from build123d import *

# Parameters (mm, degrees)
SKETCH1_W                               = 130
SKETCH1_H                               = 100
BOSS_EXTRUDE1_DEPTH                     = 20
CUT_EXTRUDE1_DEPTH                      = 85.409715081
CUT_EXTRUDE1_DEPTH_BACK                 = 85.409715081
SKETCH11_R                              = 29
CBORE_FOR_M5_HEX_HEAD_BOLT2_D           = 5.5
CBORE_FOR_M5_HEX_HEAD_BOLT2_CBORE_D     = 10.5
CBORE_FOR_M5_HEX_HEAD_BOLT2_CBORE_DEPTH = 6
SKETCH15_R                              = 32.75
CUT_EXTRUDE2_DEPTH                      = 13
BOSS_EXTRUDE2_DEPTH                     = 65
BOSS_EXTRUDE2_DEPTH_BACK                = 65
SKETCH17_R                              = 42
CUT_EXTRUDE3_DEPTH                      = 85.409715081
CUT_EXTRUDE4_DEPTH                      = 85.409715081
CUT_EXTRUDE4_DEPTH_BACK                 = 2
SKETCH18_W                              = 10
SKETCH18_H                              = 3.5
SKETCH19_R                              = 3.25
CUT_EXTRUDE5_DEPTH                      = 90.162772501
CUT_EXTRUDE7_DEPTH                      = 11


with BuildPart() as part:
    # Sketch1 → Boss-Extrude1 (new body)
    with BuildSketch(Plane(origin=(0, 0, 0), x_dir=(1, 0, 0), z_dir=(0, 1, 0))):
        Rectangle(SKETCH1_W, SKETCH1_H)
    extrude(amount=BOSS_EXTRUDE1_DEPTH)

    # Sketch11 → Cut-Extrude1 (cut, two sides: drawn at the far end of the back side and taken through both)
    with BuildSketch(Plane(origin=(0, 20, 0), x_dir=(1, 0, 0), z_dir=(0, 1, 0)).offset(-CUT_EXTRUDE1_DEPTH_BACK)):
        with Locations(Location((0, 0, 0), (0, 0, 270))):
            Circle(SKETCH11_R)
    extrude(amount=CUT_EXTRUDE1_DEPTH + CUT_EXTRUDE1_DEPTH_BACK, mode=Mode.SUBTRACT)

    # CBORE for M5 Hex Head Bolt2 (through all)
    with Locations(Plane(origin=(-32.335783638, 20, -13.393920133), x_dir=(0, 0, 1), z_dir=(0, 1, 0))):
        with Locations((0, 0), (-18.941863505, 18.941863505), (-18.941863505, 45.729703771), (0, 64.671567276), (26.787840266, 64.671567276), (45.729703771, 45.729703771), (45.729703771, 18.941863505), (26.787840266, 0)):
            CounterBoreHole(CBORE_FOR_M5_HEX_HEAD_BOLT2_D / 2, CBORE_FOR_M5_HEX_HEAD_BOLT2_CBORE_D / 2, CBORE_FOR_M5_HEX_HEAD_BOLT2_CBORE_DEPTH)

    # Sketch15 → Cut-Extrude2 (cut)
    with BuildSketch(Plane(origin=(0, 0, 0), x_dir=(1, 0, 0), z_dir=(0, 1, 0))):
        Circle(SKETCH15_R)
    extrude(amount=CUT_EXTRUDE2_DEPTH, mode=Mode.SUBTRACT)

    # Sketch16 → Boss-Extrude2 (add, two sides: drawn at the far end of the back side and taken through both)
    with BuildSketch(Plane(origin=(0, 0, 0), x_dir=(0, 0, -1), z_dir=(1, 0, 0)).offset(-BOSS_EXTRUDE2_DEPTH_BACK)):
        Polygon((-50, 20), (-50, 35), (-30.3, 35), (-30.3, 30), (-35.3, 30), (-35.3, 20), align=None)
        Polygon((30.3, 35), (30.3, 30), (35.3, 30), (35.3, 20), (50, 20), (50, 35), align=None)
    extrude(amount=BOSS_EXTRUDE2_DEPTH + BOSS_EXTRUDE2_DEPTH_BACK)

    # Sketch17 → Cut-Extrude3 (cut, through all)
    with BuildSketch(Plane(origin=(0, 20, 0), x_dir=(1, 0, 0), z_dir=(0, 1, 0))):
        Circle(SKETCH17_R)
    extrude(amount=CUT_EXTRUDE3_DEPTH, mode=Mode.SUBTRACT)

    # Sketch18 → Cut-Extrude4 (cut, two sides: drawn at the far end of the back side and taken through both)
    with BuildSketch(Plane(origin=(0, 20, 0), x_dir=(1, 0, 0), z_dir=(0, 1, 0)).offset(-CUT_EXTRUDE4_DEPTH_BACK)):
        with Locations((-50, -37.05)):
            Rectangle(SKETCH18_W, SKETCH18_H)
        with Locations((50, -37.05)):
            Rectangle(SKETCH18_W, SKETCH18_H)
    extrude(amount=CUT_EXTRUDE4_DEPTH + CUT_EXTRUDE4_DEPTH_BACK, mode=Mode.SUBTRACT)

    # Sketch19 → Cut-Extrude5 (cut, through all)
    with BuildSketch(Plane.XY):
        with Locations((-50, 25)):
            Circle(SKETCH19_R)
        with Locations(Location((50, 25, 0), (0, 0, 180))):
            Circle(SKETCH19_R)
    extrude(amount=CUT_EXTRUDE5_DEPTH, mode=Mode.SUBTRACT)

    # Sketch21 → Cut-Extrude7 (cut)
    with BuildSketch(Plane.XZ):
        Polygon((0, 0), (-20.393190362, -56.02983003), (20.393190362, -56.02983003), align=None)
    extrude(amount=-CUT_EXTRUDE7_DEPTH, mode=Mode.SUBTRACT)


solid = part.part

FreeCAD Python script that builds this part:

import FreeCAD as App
import Part
import Sketcher

V = App.Vector
Q = App.Units.Quantity


def add_polygon(sketch, points):
    """Adds a closed chain of lines whose ends are joined by coincident constraints."""
    first, n = sketch.GeometryCount, len(points)
    for a, b in zip(points, points[1:] + points[:1]):
        sketch.addGeometry(Part.LineSegment(App.Vector(*a, 0), App.Vector(*b, 0)), False)
    for i in range(n):
        sketch.addConstraint(Sketcher.Constraint("Coincident", first + i, 2, first + (i + 1) % n, 1))

doc = App.newDocument("Part")
body = doc.addObject("PartDesign::Body", "Body")

# Sketch on XZ plane
sketch1 = body.newObject("Sketcher::SketchObject", "Sketch")
sketch1.AttachmentSupport = (doc.getObject("XZ_Plane"), [""])
sketch1.MapMode = "FlatFace"
add_polygon(sketch1, [(-65, -50), (-65, 50), (65, 50), (65, -50)])  # lines 0-3
sketch1.addConstraint([
    Sketcher.Constraint("Vertical", 0),
    Sketcher.Constraint("Horizontal", 1),
    Sketcher.Constraint("Vertical", 2),
    Sketcher.Constraint("Horizontal", 3),
    Sketcher.Constraint("Symmetric", 0, 2, 2, 2, -1, 1),
    Sketcher.Constraint("DistanceX", 1, 1, 1, 2, Q("130 mm")),
    Sketcher.Constraint("DistanceY", 0, 1, 0, 2, Q("100 mm")),
])
pad1 = body.newObject("PartDesign::Pad", "Pad")
pad1.Profile = sketch1
pad1.Length = 20
pad1.Reversed = True

# Sketch on XZ plane
sketch2 = body.newObject("Sketcher::SketchObject", "Sketch001")
sketch2.AttachmentSupport = (doc.getObject("XZ_Plane"), [""])
sketch2.MapMode = "FlatFace"
sketch2.AttachmentOffset = App.Placement(V(0, 0, -20), App.Rotation())
sketch2.addGeometry(Part.Circle(V(0, 0, 0), V(0, 0, 1), 29), False)
sketch2.addConstraint([
    Sketcher.Constraint("Coincident", 0, 3, -1, 1),
    Sketcher.Constraint("Diameter", 0, Q("58 mm")),
])
pocket1 = body.newObject("PartDesign::Pocket", "Pocket")
pocket1.Profile = sketch2
pocket1.Type = "ThroughAll"
pocket1.Midplane = True

# Sketch on XZ plane
sketch3 = body.newObject("Sketcher::SketchObject", "Sketch002")
sketch3.AttachmentSupport = (doc.getObject("XZ_Plane"), [""])
sketch3.MapMode = "FlatFace"
sketch3.AttachmentOffset = App.Placement(V(0, 0, -20), App.Rotation())
sketch3.addGeometry([
    Part.Circle(V(-32.335784, -13.39392, 0), V(0, 0, 1), 2.75),  # 0
    Part.Circle(V(-13.39392, -32.335784, 0), V(0, 0, 1), 2.75),  # 1
    Part.Circle(V(13.39392, -32.335784, 0), V(0, 0, 1), 2.75),  # 2
    Part.Circle(V(32.335784, -13.39392, 0), V(0, 0, 1), 2.75),  # 3
    Part.Circle(V(32.335784, 13.39392, 0), V(0, 0, 1), 2.75),  # 4
    Part.Circle(V(13.39392, 32.335784, 0), V(0, 0, 1), 2.75),  # 5
    Part.Circle(V(-13.39392, 32.335784, 0), V(0, 0, 1), 2.75),  # 6
    Part.Circle(V(-32.335784, 13.39392, 0), V(0, 0, 1), 2.75),  # 7
], False)
sketch3.addConstraint([
    Sketcher.Constraint("Equal", 0, 1),
    Sketcher.Constraint("Equal", 1, 2),
    Sketcher.Constraint("Equal", 2, 3),
    Sketcher.Constraint("Equal", 3, 4),
    Sketcher.Constraint("Equal", 4, 5),
    Sketcher.Constraint("Equal", 5, 6),
    Sketcher.Constraint("Equal", 6, 7),
    Sketcher.Constraint("Symmetric", 0, 3, 4, 3, -1, 1),
    Sketcher.Constraint("Symmetric", 1, 3, 5, 3, -1, 1),
    Sketcher.Constraint("Symmetric", 2, 3, 6, 3, -1, 1),
    Sketcher.Constraint("Symmetric", 3, 3, 7, 3, -1, 1),
    Sketcher.Constraint("Symmetric", 1, 3, 2, 3, -2),
    Sketcher.Constraint("Symmetric", 0, 3, 3, 3, -2),
    Sketcher.Constraint("Diameter", 0, Q("5.5 mm")),
    Sketcher.Constraint("DistanceY", 0, 3, -1, 1, Q("13.39392 mm")),
    Sketcher.Constraint("DistanceX", 1, 3, -1, 1, Q("13.39392 mm")),
    Sketcher.Constraint("DistanceX", 0, 3, -1, 1, Q("32.335784 mm")),
    Sketcher.Constraint("DistanceY", 1, 3, -1, 1, Q("32.335784 mm")),
])
doc.recompute()
hole = body.newObject("PartDesign::Hole", "Hole")
hole.Profile = sketch3
hole.ThreadType = "None"
hole.Diameter = 5.5
hole.DepthType = "ThroughAll"
hole.HoleCutType = "Counterbore"
hole.HoleCutDiameter = 10.5
hole.HoleCutDepth = 6
hole.Reversed = True

# Sketch on XZ plane
sketch4 = body.newObject("Sketcher::SketchObject", "Sketch003")
sketch4.AttachmentSupport = (doc.getObject("XZ_Plane"), [""])
sketch4.MapMode = "FlatFace"
sketch4.addGeometry(Part.Circle(V(0, 0, 0), V(0, 0, 1), 32.75), False)
sketch4.addConstraint([
    Sketcher.Constraint("Coincident", 0, 3, -1, 1),
    Sketcher.Constraint("Diameter", 0, Q("65.5 mm")),
])
pocket2 = body.newObject("PartDesign::Pocket", "Pocket001")
pocket2.Profile = sketch4
pocket2.Length = 13

# Sketch on YZ plane
sketch5 = body.newObject("Sketcher::SketchObject", "Sketch004")
sketch5.AttachmentSupport = (doc.getObject("YZ_Plane"), [""])
sketch5.MapMode = "FlatFace"
add_polygon(sketch5, [(35, 50), (20, 50), (20, 35.3), (30, 35.3), (30, 30.3), (35, 30.3)])  # lines 0-5
add_polygon(sketch5, [(35, -30.3), (30, -30.3), (30, -35.3), (20, -35.3), (20, -50), (35, -50)])  # lines 6-11
sketch5.addConstraint([
    Sketcher.Constraint("Horizontal", 0),
    Sketcher.Constraint("Vertical", 1),
    Sketcher.Constraint("Horizontal", 2),
    Sketcher.Constraint("Vertical", 3),
    Sketcher.Constraint("Horizontal", 4),
    Sketcher.Constraint("Vertical", 5),
    Sketcher.Constraint("Horizontal", 6),
    Sketcher.Constraint("Vertical", 7),
    Sketcher.Constraint("Horizontal", 8),
    Sketcher.Constraint("Vertical", 9),
    Sketcher.Constraint("Horizontal", 10),
    Sketcher.Constraint("Vertical", 11),
    Sketcher.Constraint("Symmetric", 3, 2, 6, 2, -1),
    Sketcher.Constraint("Symmetric", 1, 2, 8, 2, -1),
    Sketcher.Constraint("Symmetric", 5, 2, 10, 2, -1),
    Sketcher.Constraint("Equal", 6, 3),
    Sketcher.Constraint("DistanceX", 0, 2, 0, 1, Q("15 mm")),
    Sketcher.Constraint("DistanceX", 2, 1, 2, 2, Q("10 mm")),
    Sketcher.Constraint("DistanceY", 1, 2, 1, 1, Q("14.7 mm")),
    Sketcher.Constraint("DistanceX", -1, 1, 0, 2, Q("20 mm")),
    Sketcher.Constraint("DistanceY", -1, 1, 0, 2, Q("50 mm")),
])
pad2 = body.newObject("PartDesign::Pad", "Pad001")
pad2.Profile = sketch5
pad2.Type = "TwoLengths"
pad2.Length = 65
pad2.Length2 = 65

# Sketch on XZ plane
sketch6 = body.newObject("Sketcher::SketchObject", "Sketch005")
sketch6.AttachmentSupport = (doc.getObject("XZ_Plane"), [""])
sketch6.MapMode = "FlatFace"
sketch6.AttachmentOffset = App.Placement(V(0, 0, -20), App.Rotation())
sketch6.addGeometry(Part.Circle(V(0, 0, 0), V(0, 0, 1), 42), False)
sketch6.addConstraint([
    Sketcher.Constraint("Coincident", 0, 3, -1, 1),
    Sketcher.Constraint("Diameter", 0, Q("84 mm")),
])
pocket3 = body.newObject("PartDesign::Pocket", "Pocket002")
pocket3.Profile = sketch6
pocket3.Type = "ThroughAll"

# Sketch on XZ plane
sketch7 = body.newObject("Sketcher::SketchObject", "Sketch006")
sketch7.AttachmentSupport = (doc.getObject("XZ_Plane"), [""])
sketch7.MapMode = "FlatFace"
sketch7.AttachmentOffset = App.Placement(V(0, 0, -20), App.Rotation())
add_polygon(sketch7, [(-55, 35.3), (-55, 38.8), (-45, 38.8), (-45, 35.3)])  # lines 0-3
add_polygon(sketch7, [(45, 35.3), (45, 38.8), (55, 38.8), (55, 35.3)])  # lines 4-7
sketch7.addConstraint([
    Sketcher.Constraint("Vertical", 0),
    Sketcher.Constraint("Horizontal", 1),
    Sketcher.Constraint("Vertical", 2),
    Sketcher.Constraint("Horizontal", 3),
    Sketcher.Constraint("Vertical", 4),
    Sketcher.Constraint("Horizontal", 5),
    Sketcher.Constraint("Vertical", 6),
    Sketcher.Constraint("Horizontal", 7),
    Sketcher.Constraint("Symmetric", 1, 2, 4, 2, -2),
    Sketcher.Constraint("Symmetric", 3, 2, 6, 2, -2),
    Sketcher.Constraint("DistanceX", 1, 1, 1, 2, Q("10 mm")),
    Sketcher.Constraint("DistanceY", 0, 1, 0, 2, Q("3.5 mm")),
    Sketcher.Constraint("DistanceX", 0, 2, -1, 1, Q("55 mm")),
    Sketcher.Constraint("DistanceY", -1, 1, 0, 2, Q("38.8 mm")),
])
pocket4 = body.newObject("PartDesign::Pocket", "Pocket003")
pocket4.Profile = sketch7
pocket4.Type = "TwoLengths"
pocket4.Length = 85.409715
pocket4.Length2 = 2

# Sketch on XY plane
sketch8 = body.newObject("Sketcher::SketchObject", "Sketch007")
sketch8.AttachmentSupport = (doc.getObject("XY_Plane"), [""])
sketch8.MapMode = "FlatFace"
sketch8.addGeometry([
    Part.Circle(V(-50, 25, 0), V(0, 0, 1), 3.25),
    Part.Circle(V(50, 25, 0), V(0, 0, 1), 3.25),
], False)
sketch8.addConstraint([
    Sketcher.Constraint("Equal", 0, 1),
    Sketcher.Constraint("Symmetric", 0, 3, 1, 3, -2),
    Sketcher.Constraint("Diameter", 0, Q("6.5 mm")),
    Sketcher.Constraint("DistanceX", 0, 3, -1, 1, Q("50 mm")),
    Sketcher.Constraint("DistanceY", -1, 1, 0, 3, Q("25 mm")),
])
pocket5 = body.newObject("PartDesign::Pocket", "Pocket004")
pocket5.Profile = sketch8
pocket5.Type = "ThroughAll"
pocket5.Reversed = True

# Sketch on XZ plane
sketch9 = body.newObject("Sketcher::SketchObject", "Sketch008")
sketch9.AttachmentSupport = (doc.getObject("XZ_Plane"), [""])
sketch9.MapMode = "FlatFace"
add_polygon(sketch9, [(0, 0), (-20.39319, -56.02983), (20.39319, -56.02983)])  # lines 0-2
sketch9.addConstraint([
    Sketcher.Constraint("Horizontal", 1),
    Sketcher.Constraint("Coincident", 2, 2, -1, 1),
    Sketcher.Constraint("Equal", 0, 2),
    Sketcher.Constraint("Angle", 0, Q("-110 deg")),
    Sketcher.Constraint("Distance", 0, Q("59.6257 mm")),
])
pocket6 = body.newObject("PartDesign::Pocket", "Pocket005")
pocket6.Profile = sketch9
pocket6.Length = 11

doc.recompute()
